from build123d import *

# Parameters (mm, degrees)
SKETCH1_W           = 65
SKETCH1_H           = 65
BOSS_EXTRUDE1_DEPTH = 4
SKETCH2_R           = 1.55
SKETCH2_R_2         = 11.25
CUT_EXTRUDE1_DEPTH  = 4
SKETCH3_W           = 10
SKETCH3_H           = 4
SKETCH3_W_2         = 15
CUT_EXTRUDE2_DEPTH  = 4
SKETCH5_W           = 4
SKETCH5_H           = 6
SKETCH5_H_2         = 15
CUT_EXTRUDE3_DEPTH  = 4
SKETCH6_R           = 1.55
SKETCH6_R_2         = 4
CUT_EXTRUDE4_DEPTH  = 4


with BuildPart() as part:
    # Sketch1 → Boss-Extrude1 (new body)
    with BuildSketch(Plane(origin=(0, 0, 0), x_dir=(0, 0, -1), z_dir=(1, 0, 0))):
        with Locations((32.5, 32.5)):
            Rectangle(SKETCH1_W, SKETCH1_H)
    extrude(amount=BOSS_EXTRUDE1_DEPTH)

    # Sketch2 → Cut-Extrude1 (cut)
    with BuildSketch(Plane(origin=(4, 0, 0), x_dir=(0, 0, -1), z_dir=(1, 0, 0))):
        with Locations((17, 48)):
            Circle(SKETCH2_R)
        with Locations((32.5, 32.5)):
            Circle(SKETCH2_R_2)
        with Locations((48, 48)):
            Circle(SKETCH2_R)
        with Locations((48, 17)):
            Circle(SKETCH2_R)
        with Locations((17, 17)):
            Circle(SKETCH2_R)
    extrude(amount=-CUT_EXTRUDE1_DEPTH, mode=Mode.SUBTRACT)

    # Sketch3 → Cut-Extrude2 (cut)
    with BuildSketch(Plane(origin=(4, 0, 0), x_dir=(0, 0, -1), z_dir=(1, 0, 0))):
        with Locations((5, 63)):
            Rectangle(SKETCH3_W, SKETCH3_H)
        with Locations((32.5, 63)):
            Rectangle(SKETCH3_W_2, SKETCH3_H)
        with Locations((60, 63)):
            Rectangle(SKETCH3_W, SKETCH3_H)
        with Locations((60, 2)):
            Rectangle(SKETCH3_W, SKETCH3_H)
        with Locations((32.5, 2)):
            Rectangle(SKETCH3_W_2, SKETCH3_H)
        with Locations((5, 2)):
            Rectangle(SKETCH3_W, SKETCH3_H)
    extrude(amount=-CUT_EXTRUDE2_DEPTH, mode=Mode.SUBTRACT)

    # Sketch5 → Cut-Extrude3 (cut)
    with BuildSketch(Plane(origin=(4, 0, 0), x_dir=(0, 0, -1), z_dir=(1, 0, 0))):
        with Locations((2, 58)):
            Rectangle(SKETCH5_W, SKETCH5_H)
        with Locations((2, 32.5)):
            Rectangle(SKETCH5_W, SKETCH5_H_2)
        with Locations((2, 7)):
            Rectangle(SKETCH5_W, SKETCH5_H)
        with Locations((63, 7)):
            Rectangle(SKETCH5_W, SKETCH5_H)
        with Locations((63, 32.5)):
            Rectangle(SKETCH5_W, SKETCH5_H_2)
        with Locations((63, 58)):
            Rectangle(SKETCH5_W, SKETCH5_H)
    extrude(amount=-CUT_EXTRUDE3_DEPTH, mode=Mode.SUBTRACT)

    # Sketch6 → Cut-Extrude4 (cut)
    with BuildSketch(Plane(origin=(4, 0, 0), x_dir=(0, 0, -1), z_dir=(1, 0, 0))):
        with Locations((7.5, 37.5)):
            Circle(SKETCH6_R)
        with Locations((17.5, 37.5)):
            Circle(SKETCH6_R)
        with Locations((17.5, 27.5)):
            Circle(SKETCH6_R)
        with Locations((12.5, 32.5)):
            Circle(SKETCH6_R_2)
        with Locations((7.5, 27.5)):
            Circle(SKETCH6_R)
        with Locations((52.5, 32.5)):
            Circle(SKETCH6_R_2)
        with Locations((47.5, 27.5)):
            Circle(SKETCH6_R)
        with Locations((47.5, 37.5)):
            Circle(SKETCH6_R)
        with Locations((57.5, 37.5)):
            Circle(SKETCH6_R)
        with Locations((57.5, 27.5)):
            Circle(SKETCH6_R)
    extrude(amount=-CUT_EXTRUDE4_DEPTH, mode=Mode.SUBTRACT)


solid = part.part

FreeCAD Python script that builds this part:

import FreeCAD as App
import Part
import Sketcher

V = App.Vector
Q = App.Units.Quantity


def add_polygon(sketch, points):
    """Adds a closed chain of lines whose ends are joined by coincident constraints."""
    first, n = sketch.GeometryCount, len(points)
    for a, b in zip(points, points[1:] + points[:1]):
        sketch.addGeometry(Part.LineSegment(App.Vector(*a, 0), App.Vector(*b, 0)), False)
    for i in range(n):
        sketch.addConstraint(Sketcher.Constraint("Coincident", first + i, 2, first + (i + 1) % n, 1))

doc = App.newDocument("Part")
body = doc.addObject("PartDesign::Body", "Body")

sketch1 = body.newObject("Sketcher::SketchObject", "Sketch")
sketch1.AttachmentSupport = (doc.getObject("YZ_Plane"), [""])
sketch1.MapMode = "FlatFace"
add_polygon(sketch1, [(65, 0), (0, 0), (0, -65), (65, -65)])
sketch1.addConstraint(Sketcher.Constraint("Horizontal", 0))
sketch1.addConstraint(Sketcher.Constraint("Vertical", 1))
sketch1.addConstraint(Sketcher.Constraint("Horizontal", 2))
sketch1.addConstraint(Sketcher.Constraint("Vertical", 3))
sketch1.addConstraint(Sketcher.Constraint("Coincident", 0, 2, -1, 1))
sketch1.addConstraint(Sketcher.Constraint("Equal", 2, 1))
sketch1.addConstraint(Sketcher.Constraint("DistanceX", 0, 2, 0, 1, Q("65 mm")))
pad1 = body.newObject("PartDesign::Pad", "Pad")
pad1.Profile = sketch1
pad1.Length = 4

sketch2 = body.newObject("Sketcher::SketchObject", "Sketch001")
sketch2.AttachmentSupport = (doc.getObject("YZ_Plane"), [""])
sketch2.MapMode = "FlatFace"
sketch2.AttachmentOffset = App.Placement(V(0, 0, 4), App.Rotation())
sketch2.addGeometry(Part.Circle(V(48, -17, 0), V(0, 0, 1), 1.6), False)
sketch2.addGeometry(Part.Circle(V(32.5, -32.5, 0), V(0, 0, 1), 11.2), False)
sketch2.addGeometry(Part.Circle(V(48, -48, 0), V(0, 0, 1), 1.6), False)
sketch2.addGeometry(Part.Circle(V(17, -48, 0), V(0, 0, 1), 1.6), False)
sketch2.addGeometry(Part.Circle(V(17, -17, 0), V(0, 0, 1), 1.6), False)
sketch2.addConstraint(Sketcher.Constraint("Equal", 0, 2))
sketch2.addConstraint(Sketcher.Constraint("Equal", 2, 3))
sketch2.addConstraint(Sketcher.Constraint("Equal", 3, 4))
sketch2.addConstraint(Sketcher.Constraint("Horizontal", 2, 3, 3, 3))
sketch2.addConstraint(Sketcher.Constraint("Horizontal", 0, 3, 4, 3))
sketch2.addConstraint(Sketcher.Constraint("Vertical", 0, 3, 2, 3))
sketch2.addConstraint(Sketcher.Constraint("Vertical", 3, 3, 4, 3))
sketch2.addConstraint(Sketcher.Constraint("Diameter", 0, Q("3.1 mm")))
sketch2.addConstraint(Sketcher.Constraint("Diameter", 1, Q("22.5 mm")))
sketch2.addConstraint(Sketcher.Constraint("DistanceX", -1, 1, 0, 3, Q("48 mm")))
sketch2.addConstraint(Sketcher.Constraint("DistanceY", 0, 3, -1, 1, Q("17 mm")))
sketch2.addConstraint(Sketcher.Constraint("DistanceY", 2, 3, -1, 1, Q("48 mm")))
sketch2.addConstraint(Sketcher.Constraint("DistanceX", -1, 1, 3, 3, Q("17 mm")))
sketch2.addConstraint(Sketcher.Constraint("DistanceX", -1, 1, 1, 3, Q("32.5 mm")))
sketch2.addConstraint(Sketcher.Constraint("DistanceY", 1, 3, -1, 1, Q("32.5 mm")))
pocket1 = body.newObject("PartDesign::Pocket", "Pocket")
pocket1.Profile = sketch2
pocket1.Length = 4

sketch3 = body.newObject("Sketcher::SketchObject", "Sketch002")
sketch3.AttachmentSupport = (doc.getObject("YZ_Plane"), [""])
sketch3.MapMode = "FlatFace"
sketch3.AttachmentOffset = App.Placement(V(0, 0, 4), App.Rotation())
add_polygon(sketch3, [(65, 0), (61, 0), (61, -10), (65, -10)])
add_polygon(sketch3, [(65, -25), (61, -25), (61, -40), (65, -40)])
add_polygon(sketch3, [(65, -55), (61, -55), (61, -65), (65, -65)])
add_polygon(sketch3, [(4, -55), (0, -55), (0, -65), (4, -65)])
add_polygon(sketch3, [(4, -25), (0, -25), (0, -40), (4, -40)])
add_polygon(sketch3, [(4, 0), (0, 0), (0, -10), (4, -10)])
sketch3.addConstraint(Sketcher.Constraint("Horizontal", 0))
sketch3.addConstraint(Sketcher.Constraint("Vertical", 1))
sketch3.addConstraint(Sketcher.Constraint("Horizontal", 2))
sketch3.addConstraint(Sketcher.Constraint("Vertical", 3))
sketch3.addConstraint(Sketcher.Constraint("Horizontal", 4))
sketch3.addConstraint(Sketcher.Constraint("Vertical", 5))
sketch3.addConstraint(Sketcher.Constraint("Horizontal", 6))
sketch3.addConstraint(Sketcher.Constraint("Vertical", 7))
sketch3.addConstraint(Sketcher.Constraint("Horizontal", 8))
sketch3.addConstraint(Sketcher.Constraint("Vertical", 9))
sketch3.addConstraint(Sketcher.Constraint("Horizontal", 10))
sketch3.addConstraint(Sketcher.Constraint("Vertical", 11))
sketch3.addConstraint(Sketcher.Constraint("Horizontal", 12))
sketch3.addConstraint(Sketcher.Constraint("Vertical", 13))
sketch3.addConstraint(Sketcher.Constraint("Horizontal", 14))
sketch3.addConstraint(Sketcher.Constraint("Vertical", 15))
sketch3.addConstraint(Sketcher.Constraint("Horizontal", 16))
sketch3.addConstraint(Sketcher.Constraint("Vertical", 17))
sketch3.addConstraint(Sketcher.Constraint("Horizontal", 18))
sketch3.addConstraint(Sketcher.Constraint("Vertical", 19))
sketch3.addConstraint(Sketcher.Constraint("Horizontal", 20))
sketch3.addConstraint(Sketcher.Constraint("Vertical", 21))
sketch3.addConstraint(Sketcher.Constraint("Horizontal", 22))
sketch3.addConstraint(Sketcher.Constraint("Vertical", 23))
sketch3.addConstraint(Sketcher.Constraint("Coincident", 20, 2, -1, 1))
sketch3.addConstraint(Sketcher.Constraint("PointOnObject", 0, 2, -1))
sketch3.addConstraint(Sketcher.Constraint("PointOnObject", 12, 2, -2))
sketch3.addConstraint(Sketcher.Constraint("PointOnObject", 16, 2, -2))
sketch3.addConstraint(Sketcher.Constraint("Horizontal", 11, 2, 12, 2))
sketch3.addConstraint(Sketcher.Constraint("Horizontal", 10, 2, 13, 2))
sketch3.addConstraint(Sketcher.Constraint("Horizontal", 7, 2, 16, 2))
sketch3.addConstraint(Sketcher.Constraint("Horizontal", 6, 2, 17, 2))
sketch3.addConstraint(Sketcher.Constraint("Horizontal", 2, 2, 21, 2))
sketch3.addConstraint(Sketcher.Constraint("Vertical", 1, 2, 4, 2))
sketch3.addConstraint(Sketcher.Constraint("Vertical", 3, 2, 6, 2))
sketch3.addConstraint(Sketcher.Constraint("Vertical", 5, 2, 8, 2))
sketch3.addConstraint(Sketcher.Constraint("Vertical", 7, 2, 10, 2))
sketch3.addConstraint(Sketcher.Constraint("Vertical", 15, 2, 18, 2))
sketch3.addConstraint(Sketcher.Constraint("Vertical", 19, 2, 22, 2))
sketch3.addConstraint(Sketcher.Constraint("Equal", 10, 12))
sketch3.addConstraint(Sketcher.Constraint("Equal", 3, 9))
sketch3.addConstraint(Sketcher.Constraint("DistanceX", 0, 2, 0, 1, Q("4 mm")))
sketch3.addConstraint(Sketcher.Constraint("DistanceY", 1, 2, 1, 1, Q("10 mm")))
sketch3.addConstraint(Sketcher.Constraint("DistanceY", 5, 2, 5, 1, Q("15 mm")))
sketch3.addConstraint(Sketcher.Constraint("DistanceX", -1, 1, 0, 2, Q("61 mm")))
sketch3.addConstraint(Sketcher.Constraint("DistanceY", 4, 2, -1, 1, Q("25 mm")))
sketch3.addConstraint(Sketcher.Constraint("DistanceY", 8, 2, -1, 1, Q("55 mm")))
pocket2 = body.newObject("PartDesign::Pocket", "Pocket001")
pocket2.Profile = sketch3
pocket2.Length = 4

sketch4 = body.newObject("Sketcher::SketchObject", "Sketch003")
sketch4.AttachmentSupport = (doc.getObject("YZ_Plane"), [""])
sketch4.MapMode = "FlatFace"
sketch4.AttachmentOffset = App.Placement(V(0, 0, 4), App.Rotation())
add_polygon(sketch4, [(61, 0), (55, 0), (55, -4), (61, -4)])
add_polygon(sketch4, [(40, 0), (25, 0), (25, -4), (40, -4)])
add_polygon(sketch4, [(10, 0), (4, 0), (4, -4), (10, -4)])
add_polygon(sketch4, [(10, -61), (4, -61), (4, -65), (10, -65)])
add_polygon(sketch4, [(40, -61), (25, -61), (25, -65), (40, -65)])
add_polygon(sketch4, [(61, -61), (55, -61), (55, -65), (61, -65)])
sketch4.addConstraint(Sketcher.Constraint("Horizontal", 0))
sketch4.addConstraint(Sketcher.Constraint("Vertical", 1))
sketch4.addConstraint(Sketcher.Constraint("Horizontal", 2))
sketch4.addConstraint(Sketcher.Constraint("Vertical", 3))
sketch4.addConstraint(Sketcher.Constraint("Horizontal", 4))
sketch4.addConstraint(Sketcher.Constraint("Vertical", 5))
sketch4.addConstraint(Sketcher.Constraint("Horizontal", 6))
sketch4.addConstraint(Sketcher.Constraint("Vertical", 7))
sketch4.addConstraint(Sketcher.Constraint("Horizontal", 8))
sketch4.addConstraint(Sketcher.Constraint("Vertical", 9))
sketch4.addConstraint(Sketcher.Constraint("Horizontal", 10))
sketch4.addConstraint(Sketcher.Constraint("Vertical", 11))
sketch4.addConstraint(Sketcher.Constraint("Horizontal", 12))
sketch4.addConstraint(Sketcher.Constraint("Vertical", 13))
sketch4.addConstraint(Sketcher.Constraint("Horizontal", 14))
sketch4.addConstraint(Sketcher.Constraint("Vertical", 15))
sketch4.addConstraint(Sketcher.Constraint("Horizontal", 16))
sketch4.addConstraint(Sketcher.Constraint("Vertical", 17))
sketch4.addConstraint(Sketcher.Constraint("Horizontal", 18))
sketch4.addConstraint(Sketcher.Constraint("Vertical", 19))
sketch4.addConstraint(Sketcher.Constraint("Horizontal", 20))
sketch4.addConstraint(Sketcher.Constraint("Vertical", 21))
sketch4.addConstraint(Sketcher.Constraint("Horizontal", 22))
sketch4.addConstraint(Sketcher.Constraint("Vertical", 23))
sketch4.addConstraint(Sketcher.Constraint("PointOnObject", 0, 2, -1))
sketch4.addConstraint(Sketcher.Constraint("PointOnObject", 4, 2, -1))
sketch4.addConstraint(Sketcher.Constraint("PointOnObject", 8, 2, -1))
sketch4.addConstraint(Sketcher.Constraint("Horizontal", 2, 2, 5, 2))
sketch4.addConstraint(Sketcher.Constraint("Horizontal", 6, 2, 9, 2))
sketch4.addConstraint(Sketcher.Constraint("Horizontal", 15, 2, 16, 2))
sketch4.addConstraint(Sketcher.Constraint("Horizontal", 14, 2, 17, 2))
sketch4.addConstraint(Sketcher.Constraint("Horizontal", 19, 2, 20, 2))
sketch4.addConstraint(Sketcher.Constraint("Horizontal", 18, 2, 21, 2))
sketch4.addConstraint(Sketcher.Constraint("Vertical", 9, 2, 12, 2))
sketch4.addConstraint(Sketcher.Constraint("Vertical", 11, 2, 14, 2))
sketch4.addConstraint(Sketcher.Constraint("Vertical", 5, 2, 16, 2))
sketch4.addConstraint(Sketcher.Constraint("Vertical", 7, 2, 18, 2))
sketch4.addConstraint(Sketcher.Constraint("Vertical", 1, 2, 20, 2))
sketch4.addConstraint(Sketcher.Constraint("Vertical", 3, 2, 22, 2))
sketch4.addConstraint(Sketcher.Constraint("Equal", 2, 8))
sketch4.addConstraint(Sketcher.Constraint("Equal", 11, 13))
sketch4.addConstraint(Sketcher.Constraint("DistanceX", 0, 2, 0, 1, Q("6 mm")))
sketch4.addConstraint(Sketcher.Constraint("DistanceX", 4, 2, 4, 1, Q("15 mm")))
sketch4.addConstraint(Sketcher.Constraint("DistanceY", 1, 2, 1, 1, Q("4 mm")))
sketch4.addConstraint(Sketcher.Constraint("DistanceX", -1, 1, 0, 2, Q("55 mm")))
sketch4.addConstraint(Sketcher.Constraint("DistanceX", -1, 1, 4, 2, Q("25 mm")))
sketch4.addConstraint(Sketcher.Constraint("DistanceX", -1, 1, 8, 2, Q("4 mm")))
sketch4.addConstraint(Sketcher.Constraint("DistanceY", 12, 2, -1, 1, Q("61 mm")))
pocket3 = body.newObject("PartDesign::Pocket", "Pocket002")
pocket3.Profile = sketch4
pocket3.Length = 4

sketch5 = body.newObject("Sketcher::SketchObject", "Sketch004")
sketch5.AttachmentSupport = (doc.getObject("YZ_Plane"), [""])
sketch5.MapMode = "FlatFace"
sketch5.AttachmentOffset = App.Placement(V(0, 0, 4), App.Rotation())
sketch5.addGeometry(Part.Circle(V(37.5, -7.5, 0), V(0, 0, 1), 1.6), False)
sketch5.addGeometry(Part.Circle(V(37.5, -17.5, 0), V(0, 0, 1), 1.6), False)
sketch5.addGeometry(Part.Circle(V(27.5, -17.5, 0), V(0, 0, 1), 1.6), False)
sketch5.addGeometry(Part.Circle(V(32.5, -12.5, 0), V(0, 0, 1), 4), False)
sketch5.addGeometry(Part.Circle(V(27.5, -7.5, 0), V(0, 0, 1), 1.6), False)
sketch5.addGeometry(Part.Circle(V(32.5, -52.5, 0), V(0, 0, 1), 4), False)
sketch5.addGeometry(Part.Circle(V(27.5, -47.5, 0), V(0, 0, 1), 1.6), False)
sketch5.addGeometry(Part.Circle(V(37.5, -47.5, 0), V(0, 0, 1), 1.6), False)
sketch5.addGeometry(Part.Circle(V(37.5, -57.5, 0), V(0, 0, 1), 1.6), False)
sketch5.addGeometry(Part.Circle(V(27.5, -57.5, 0), V(0, 0, 1), 1.6), False)
sketch5.addConstraint(Sketcher.Constraint("Equal", 0, 1))
sketch5.addConstraint(Sketcher.Constraint("Equal", 1, 2))
sketch5.addConstraint(Sketcher.Constraint("Equal", 2, 4))
sketch5.addConstraint(Sketcher.Constraint("Equal", 3, 5))
sketch5.addConstraint(Sketcher.Constraint("Equal", 4, 6))
sketch5.addConstraint(Sketcher.Constraint("Equal", 6, 7))
sketch5.addConstraint(Sketcher.Constraint("Equal", 7, 8))
sketch5.addConstraint(Sketcher.Constraint("Equal", 8, 9))
sketch5.addConstraint(Sketcher.Constraint("Horizontal", 1, 3, 2, 3))
sketch5.addConstraint(Sketcher.Constraint("Horizontal", 0, 3, 4, 3))
sketch5.addConstraint(Sketcher.Constraint("Horizontal", 6, 3, 7, 3))
sketch5.addConstraint(Sketcher.Constraint("Horizontal", 8, 3, 9, 3))
sketch5.addConstraint(Sketcher.Constraint("Vertical", 0, 3, 1, 3))
sketch5.addConstraint(Sketcher.Constraint("Vertical", 2, 3, 4, 3))
sketch5.addConstraint(Sketcher.Constraint("Vertical", 3, 3, 5, 3))
sketch5.addConstraint(Sketcher.Constraint("Vertical", 4, 3, 6, 3))
sketch5.addConstraint(Sketcher.Constraint("Vertical", 1, 3, 7, 3))
sketch5.addConstraint(Sketcher.Constraint("Vertical", 7, 3, 8, 3))
sketch5.addConstraint(Sketcher.Constraint("Vertical", 6, 3, 9, 3))
sketch5.addConstraint(Sketcher.Constraint("Diameter", 3, Q("8 mm")))
sketch5.addConstraint(Sketcher.Constraint("Diameter", 0, Q("3.1 mm")))
sketch5.addConstraint(Sketcher.Constraint("DistanceY", 1, 3, 0, 3, Q("10 mm")))
sketch5.addConstraint(Sketcher.Constraint("DistanceX", 2, 3, 1, 3, Q("10 mm")))
sketch5.addConstraint(Sketcher.Constraint("DistanceX", 3, 3, 0, 3, Q("5 mm")))
sketch5.addConstraint(Sketcher.Constraint("DistanceY", 3, 3, 0, 3, Q("5 mm")))
sketch5.addConstraint(Sketcher.Constraint("DistanceY", 5, 3, 1, 3, Q("35 mm")))
sketch5.addConstraint(Sketcher.Constraint("DistanceY", 5, 3, 6, 3, Q("5 mm")))
sketch5.addConstraint(Sketcher.Constraint("DistanceY", 8, 3, 5, 3, Q("5 mm")))
sketch5.addConstraint(Sketcher.Constraint("DistanceX", -1, 1, 0, 3, Q("37.5 mm")))
sketch5.addConstraint(Sketcher.Constraint("DistanceY", 0, 3, -1, 1, Q("7.5 mm")))
pocket4 = body.newObject("PartDesign::Pocket", "Pocket003")
pocket4.Profile = sketch5
pocket4.Length = 4

doc.recompute()
